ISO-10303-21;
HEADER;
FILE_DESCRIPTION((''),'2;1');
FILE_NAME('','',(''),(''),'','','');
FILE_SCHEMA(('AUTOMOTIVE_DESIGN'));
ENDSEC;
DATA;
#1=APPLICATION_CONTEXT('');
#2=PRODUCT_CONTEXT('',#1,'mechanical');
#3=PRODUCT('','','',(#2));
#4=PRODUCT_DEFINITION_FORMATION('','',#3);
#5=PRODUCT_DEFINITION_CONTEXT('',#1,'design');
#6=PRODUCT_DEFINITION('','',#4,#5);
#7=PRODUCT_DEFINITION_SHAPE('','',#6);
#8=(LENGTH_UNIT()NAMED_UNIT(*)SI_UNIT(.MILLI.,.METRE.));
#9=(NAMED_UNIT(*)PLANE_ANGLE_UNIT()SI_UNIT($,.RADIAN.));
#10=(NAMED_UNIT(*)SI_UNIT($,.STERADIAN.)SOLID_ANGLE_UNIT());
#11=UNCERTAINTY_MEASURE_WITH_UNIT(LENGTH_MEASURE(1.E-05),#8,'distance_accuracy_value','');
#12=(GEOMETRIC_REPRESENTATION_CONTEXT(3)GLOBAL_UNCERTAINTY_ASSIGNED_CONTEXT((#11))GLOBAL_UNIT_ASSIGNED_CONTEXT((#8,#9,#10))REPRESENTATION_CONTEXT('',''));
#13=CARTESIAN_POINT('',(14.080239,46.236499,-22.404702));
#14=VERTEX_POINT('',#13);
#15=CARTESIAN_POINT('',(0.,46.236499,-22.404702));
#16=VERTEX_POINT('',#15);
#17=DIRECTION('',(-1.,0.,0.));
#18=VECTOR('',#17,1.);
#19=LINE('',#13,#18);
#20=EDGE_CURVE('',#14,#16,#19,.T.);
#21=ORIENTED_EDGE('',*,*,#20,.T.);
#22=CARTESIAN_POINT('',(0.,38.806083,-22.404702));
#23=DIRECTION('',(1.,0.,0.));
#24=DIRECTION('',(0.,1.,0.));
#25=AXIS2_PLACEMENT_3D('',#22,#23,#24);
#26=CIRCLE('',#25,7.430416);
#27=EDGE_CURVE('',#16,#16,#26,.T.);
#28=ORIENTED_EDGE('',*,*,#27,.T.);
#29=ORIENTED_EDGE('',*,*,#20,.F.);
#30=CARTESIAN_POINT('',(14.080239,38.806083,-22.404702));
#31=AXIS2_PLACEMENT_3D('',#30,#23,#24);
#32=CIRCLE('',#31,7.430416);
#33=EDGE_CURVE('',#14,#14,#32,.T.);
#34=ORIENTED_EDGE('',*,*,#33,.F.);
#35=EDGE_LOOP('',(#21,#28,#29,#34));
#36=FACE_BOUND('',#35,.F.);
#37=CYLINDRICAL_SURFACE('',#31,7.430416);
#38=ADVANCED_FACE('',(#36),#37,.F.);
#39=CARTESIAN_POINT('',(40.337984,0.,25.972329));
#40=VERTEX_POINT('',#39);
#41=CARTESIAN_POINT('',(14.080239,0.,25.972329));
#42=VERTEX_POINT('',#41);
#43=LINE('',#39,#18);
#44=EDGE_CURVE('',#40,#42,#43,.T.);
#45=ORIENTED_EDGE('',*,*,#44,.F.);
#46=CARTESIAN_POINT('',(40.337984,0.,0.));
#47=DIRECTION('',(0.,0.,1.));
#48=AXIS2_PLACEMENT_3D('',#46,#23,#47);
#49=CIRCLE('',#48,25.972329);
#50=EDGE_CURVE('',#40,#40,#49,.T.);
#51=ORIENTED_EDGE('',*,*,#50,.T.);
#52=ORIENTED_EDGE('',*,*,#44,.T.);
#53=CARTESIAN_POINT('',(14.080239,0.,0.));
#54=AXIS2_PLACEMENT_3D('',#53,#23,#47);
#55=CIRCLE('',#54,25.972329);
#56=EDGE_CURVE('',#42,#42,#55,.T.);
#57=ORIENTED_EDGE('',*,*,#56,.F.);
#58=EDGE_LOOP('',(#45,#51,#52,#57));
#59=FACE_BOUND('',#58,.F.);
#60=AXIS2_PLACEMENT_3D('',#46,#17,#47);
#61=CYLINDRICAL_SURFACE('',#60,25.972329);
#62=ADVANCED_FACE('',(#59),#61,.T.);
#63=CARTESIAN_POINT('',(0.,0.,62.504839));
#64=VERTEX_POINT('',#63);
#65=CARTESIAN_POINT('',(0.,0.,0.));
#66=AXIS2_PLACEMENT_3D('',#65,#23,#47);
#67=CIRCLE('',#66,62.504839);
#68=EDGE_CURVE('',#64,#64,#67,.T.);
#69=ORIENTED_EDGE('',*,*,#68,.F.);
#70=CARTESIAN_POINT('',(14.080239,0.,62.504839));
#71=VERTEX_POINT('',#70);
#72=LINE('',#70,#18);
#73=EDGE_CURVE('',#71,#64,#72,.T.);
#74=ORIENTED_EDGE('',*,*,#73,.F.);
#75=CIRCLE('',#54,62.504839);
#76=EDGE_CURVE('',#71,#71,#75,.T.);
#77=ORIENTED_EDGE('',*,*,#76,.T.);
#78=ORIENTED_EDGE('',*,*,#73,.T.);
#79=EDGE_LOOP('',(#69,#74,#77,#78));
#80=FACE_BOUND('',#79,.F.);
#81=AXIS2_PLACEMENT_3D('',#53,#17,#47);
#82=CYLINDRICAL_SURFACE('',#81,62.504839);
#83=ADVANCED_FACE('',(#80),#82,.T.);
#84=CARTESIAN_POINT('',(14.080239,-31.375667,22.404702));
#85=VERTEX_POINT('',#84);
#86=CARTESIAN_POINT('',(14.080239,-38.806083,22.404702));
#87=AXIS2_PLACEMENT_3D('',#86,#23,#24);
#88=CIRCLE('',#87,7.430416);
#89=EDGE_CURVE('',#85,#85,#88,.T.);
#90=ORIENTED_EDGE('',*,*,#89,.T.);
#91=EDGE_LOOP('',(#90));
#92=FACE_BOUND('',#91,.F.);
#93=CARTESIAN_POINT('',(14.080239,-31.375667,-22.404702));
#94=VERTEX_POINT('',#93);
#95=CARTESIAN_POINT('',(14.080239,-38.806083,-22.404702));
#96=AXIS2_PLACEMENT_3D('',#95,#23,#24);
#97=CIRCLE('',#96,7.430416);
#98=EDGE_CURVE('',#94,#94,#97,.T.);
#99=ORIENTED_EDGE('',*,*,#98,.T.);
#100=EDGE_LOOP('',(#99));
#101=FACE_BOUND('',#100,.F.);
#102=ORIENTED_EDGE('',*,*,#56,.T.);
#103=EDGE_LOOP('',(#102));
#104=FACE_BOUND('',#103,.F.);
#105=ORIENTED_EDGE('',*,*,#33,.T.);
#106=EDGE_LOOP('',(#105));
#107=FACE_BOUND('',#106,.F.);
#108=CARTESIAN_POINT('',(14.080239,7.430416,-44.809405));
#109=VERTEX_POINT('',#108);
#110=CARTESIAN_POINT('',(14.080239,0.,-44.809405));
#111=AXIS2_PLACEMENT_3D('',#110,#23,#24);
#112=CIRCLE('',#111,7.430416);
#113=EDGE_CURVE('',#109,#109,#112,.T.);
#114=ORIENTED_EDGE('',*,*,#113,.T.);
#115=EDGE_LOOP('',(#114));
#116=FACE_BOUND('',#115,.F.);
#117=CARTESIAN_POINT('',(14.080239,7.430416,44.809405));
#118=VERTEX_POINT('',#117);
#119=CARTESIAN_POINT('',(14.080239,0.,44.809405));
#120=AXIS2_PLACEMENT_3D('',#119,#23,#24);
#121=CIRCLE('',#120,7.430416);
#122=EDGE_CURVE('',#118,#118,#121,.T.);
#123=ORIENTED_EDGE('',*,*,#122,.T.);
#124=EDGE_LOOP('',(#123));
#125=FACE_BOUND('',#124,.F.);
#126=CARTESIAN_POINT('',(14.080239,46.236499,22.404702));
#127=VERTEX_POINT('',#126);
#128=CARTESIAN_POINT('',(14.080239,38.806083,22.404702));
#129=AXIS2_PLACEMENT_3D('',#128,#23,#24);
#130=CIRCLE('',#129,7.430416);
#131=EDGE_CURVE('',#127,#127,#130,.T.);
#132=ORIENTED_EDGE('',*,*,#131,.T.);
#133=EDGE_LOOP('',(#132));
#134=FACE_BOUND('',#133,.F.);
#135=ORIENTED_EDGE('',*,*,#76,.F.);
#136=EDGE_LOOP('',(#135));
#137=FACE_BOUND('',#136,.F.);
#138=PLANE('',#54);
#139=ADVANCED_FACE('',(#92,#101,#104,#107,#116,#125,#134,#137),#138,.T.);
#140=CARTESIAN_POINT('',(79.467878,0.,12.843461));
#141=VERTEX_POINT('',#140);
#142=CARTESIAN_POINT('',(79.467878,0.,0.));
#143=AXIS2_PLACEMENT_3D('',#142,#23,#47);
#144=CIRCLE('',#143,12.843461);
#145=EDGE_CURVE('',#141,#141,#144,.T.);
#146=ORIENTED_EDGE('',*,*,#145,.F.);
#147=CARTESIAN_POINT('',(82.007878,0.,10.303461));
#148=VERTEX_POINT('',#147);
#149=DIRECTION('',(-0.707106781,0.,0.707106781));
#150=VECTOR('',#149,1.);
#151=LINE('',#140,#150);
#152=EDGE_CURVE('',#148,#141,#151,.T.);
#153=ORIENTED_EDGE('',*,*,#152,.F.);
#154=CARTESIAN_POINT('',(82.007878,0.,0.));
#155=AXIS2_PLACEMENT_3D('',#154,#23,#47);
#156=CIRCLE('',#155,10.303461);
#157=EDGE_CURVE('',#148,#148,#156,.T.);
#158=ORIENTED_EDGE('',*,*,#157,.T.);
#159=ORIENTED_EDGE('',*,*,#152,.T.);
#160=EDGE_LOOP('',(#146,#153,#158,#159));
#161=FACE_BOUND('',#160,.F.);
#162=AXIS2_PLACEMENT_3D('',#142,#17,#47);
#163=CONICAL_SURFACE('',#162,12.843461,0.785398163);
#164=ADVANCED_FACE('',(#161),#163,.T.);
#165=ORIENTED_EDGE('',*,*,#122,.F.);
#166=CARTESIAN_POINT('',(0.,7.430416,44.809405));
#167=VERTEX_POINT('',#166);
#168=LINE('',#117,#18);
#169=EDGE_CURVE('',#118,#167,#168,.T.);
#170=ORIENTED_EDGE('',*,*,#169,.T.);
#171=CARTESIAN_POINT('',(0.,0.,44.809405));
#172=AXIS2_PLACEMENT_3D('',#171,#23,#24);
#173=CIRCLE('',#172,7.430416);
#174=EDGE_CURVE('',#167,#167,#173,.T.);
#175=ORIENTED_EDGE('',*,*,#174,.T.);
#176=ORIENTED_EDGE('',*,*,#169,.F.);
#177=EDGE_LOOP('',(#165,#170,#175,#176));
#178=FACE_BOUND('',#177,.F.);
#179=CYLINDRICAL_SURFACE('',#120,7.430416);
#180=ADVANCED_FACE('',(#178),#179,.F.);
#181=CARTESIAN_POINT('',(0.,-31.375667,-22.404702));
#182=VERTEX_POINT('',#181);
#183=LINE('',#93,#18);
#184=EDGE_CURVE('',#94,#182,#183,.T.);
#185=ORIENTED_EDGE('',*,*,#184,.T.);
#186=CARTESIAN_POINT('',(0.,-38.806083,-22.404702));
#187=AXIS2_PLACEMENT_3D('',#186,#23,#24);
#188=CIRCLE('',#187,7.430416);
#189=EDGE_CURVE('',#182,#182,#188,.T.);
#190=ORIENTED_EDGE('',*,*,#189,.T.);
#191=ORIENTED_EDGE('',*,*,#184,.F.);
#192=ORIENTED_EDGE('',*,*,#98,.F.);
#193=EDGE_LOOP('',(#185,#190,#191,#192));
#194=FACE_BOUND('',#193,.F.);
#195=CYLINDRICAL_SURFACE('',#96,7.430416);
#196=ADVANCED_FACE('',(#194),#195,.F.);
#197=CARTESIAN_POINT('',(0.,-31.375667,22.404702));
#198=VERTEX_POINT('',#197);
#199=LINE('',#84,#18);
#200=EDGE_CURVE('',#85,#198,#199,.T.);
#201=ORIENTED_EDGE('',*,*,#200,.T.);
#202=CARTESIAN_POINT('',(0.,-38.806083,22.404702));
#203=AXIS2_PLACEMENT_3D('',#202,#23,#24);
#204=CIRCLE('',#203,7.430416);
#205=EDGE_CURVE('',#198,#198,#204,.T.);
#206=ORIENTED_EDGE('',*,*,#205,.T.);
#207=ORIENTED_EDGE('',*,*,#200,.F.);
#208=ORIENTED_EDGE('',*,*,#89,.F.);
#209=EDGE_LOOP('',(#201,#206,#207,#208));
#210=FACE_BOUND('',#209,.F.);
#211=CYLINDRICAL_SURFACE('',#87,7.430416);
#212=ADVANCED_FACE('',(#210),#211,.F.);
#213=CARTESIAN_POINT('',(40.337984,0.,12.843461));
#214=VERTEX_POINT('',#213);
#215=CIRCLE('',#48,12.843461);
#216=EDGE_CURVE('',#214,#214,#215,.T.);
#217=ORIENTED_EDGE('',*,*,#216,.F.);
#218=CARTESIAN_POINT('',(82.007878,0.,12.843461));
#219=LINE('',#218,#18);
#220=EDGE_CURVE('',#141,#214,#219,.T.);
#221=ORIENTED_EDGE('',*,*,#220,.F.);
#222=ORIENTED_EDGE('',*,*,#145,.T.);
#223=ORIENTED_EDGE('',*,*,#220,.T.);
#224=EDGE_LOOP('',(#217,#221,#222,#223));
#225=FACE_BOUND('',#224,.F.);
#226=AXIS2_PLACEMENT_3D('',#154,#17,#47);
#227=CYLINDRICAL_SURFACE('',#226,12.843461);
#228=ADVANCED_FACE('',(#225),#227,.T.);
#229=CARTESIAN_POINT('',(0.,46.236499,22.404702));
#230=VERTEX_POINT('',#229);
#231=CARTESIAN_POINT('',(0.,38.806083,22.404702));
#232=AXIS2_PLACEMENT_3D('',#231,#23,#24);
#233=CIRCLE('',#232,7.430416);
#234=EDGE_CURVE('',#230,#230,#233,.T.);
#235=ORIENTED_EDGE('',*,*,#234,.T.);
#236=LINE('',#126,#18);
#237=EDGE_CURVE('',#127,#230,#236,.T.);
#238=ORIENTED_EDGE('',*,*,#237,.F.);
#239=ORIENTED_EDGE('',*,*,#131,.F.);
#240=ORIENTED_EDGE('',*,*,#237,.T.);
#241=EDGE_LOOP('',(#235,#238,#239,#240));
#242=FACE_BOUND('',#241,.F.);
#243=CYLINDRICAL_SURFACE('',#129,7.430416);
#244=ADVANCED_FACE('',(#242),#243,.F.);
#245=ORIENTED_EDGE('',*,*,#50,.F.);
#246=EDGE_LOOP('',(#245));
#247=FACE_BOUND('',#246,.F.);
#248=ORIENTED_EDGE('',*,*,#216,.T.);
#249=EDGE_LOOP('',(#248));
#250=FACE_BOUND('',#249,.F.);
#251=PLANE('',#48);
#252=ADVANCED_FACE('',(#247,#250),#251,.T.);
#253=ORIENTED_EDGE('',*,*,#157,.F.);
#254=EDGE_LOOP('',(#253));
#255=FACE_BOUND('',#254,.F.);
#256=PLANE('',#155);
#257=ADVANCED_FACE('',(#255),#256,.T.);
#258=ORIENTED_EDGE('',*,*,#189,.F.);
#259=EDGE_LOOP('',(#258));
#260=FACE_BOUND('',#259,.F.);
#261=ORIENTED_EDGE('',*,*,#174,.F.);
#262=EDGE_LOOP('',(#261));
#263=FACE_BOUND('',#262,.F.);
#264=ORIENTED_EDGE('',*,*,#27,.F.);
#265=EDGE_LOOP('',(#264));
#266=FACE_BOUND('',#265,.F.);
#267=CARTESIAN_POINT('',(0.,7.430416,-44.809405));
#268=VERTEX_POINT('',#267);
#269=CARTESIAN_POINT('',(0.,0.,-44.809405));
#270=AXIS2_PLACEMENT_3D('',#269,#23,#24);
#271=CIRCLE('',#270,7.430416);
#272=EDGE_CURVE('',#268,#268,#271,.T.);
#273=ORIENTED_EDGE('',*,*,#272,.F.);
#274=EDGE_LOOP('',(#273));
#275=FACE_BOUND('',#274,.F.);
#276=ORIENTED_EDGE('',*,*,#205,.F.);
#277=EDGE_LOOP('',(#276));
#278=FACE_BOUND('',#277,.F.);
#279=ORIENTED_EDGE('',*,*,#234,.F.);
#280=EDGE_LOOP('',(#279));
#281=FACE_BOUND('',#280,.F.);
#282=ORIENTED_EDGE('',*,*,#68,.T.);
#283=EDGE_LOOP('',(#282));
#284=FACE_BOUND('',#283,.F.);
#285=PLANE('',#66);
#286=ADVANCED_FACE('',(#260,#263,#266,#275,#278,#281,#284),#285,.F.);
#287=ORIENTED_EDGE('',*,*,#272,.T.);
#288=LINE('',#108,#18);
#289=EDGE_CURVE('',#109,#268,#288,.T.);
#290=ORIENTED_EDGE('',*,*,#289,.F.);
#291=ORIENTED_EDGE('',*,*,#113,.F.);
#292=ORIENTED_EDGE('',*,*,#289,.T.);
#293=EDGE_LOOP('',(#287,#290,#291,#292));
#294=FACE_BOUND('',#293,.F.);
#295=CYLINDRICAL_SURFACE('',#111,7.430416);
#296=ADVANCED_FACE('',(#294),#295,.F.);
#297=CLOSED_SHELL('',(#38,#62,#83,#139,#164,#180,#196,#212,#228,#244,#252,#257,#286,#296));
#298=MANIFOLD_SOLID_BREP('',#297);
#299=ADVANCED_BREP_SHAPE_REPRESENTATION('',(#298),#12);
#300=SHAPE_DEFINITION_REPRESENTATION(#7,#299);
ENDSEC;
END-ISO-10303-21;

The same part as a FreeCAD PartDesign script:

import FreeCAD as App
import Part
import Sketcher

V = App.Vector


def edges_at(feature, points):
    """Names of the edges that pass closest to the given points."""
    edges = feature.Shape.Edges
    near = lambda p: min(range(len(edges)), key=lambda i: edges[i].distToShape(Part.Vertex(*p))[0])
    return sorted({f"Edge{near(p) + 1}" for p in points})


def add_polygon(sketch, points):
    """Adds a closed chain of lines whose ends are joined by coincident constraints."""
    first, n = sketch.GeometryCount, len(points)
    for a, b in zip(points, points[1:] + points[:1]):
        sketch.addGeometry(Part.LineSegment(App.Vector(*a, 0), App.Vector(*b, 0)), False)
    for i in range(n):
        sketch.addConstraint(Sketcher.Constraint("Coincident", first + i, 2, first + (i + 1) % n, 1))

doc = App.newDocument("Part")
params = doc.addObject("Spreadsheet::Sheet", "Params")
for row, (alias, value) in enumerate([
    ("revolution_angle", "360 deg"),
    ("chamfer_size", "0.1 in"),
    ("pocket1_length", "1 in"),
], start=1):
    params.set(f"A{row}", alias)
    params.set(f"B{row}", "=" + value)
    params.setAlias(f"B{row}", alias)

body = doc.addObject("PartDesign::Body", "Body")

sketch1 = doc.addObject("Sketcher::SketchObject", "Sketch")
body.addObject(sketch1)
sketch1.AttachmentSupport = (doc.XZ_Plane, [""])
sketch1.MapMode = "FlatFace"
add_polygon(sketch1, [(0, 63), (0, 0), (82, 0), (82, 13), (40, 13), (40, 26), (14, 26), (14, 63)])
sketch1.addConstraint(Sketcher.Constraint("Vertical", 0))
sketch1.addConstraint(Sketcher.Constraint("Horizontal", 1))
sketch1.addConstraint(Sketcher.Constraint("Vertical", 2))
sketch1.addConstraint(Sketcher.Constraint("Horizontal", 3))
sketch1.addConstraint(Sketcher.Constraint("Vertical", 4))
sketch1.addConstraint(Sketcher.Constraint("Horizontal", 5))
sketch1.addConstraint(Sketcher.Constraint("Vertical", 6))
sketch1.addConstraint(Sketcher.Constraint("Horizontal", 7))
sketch1.addConstraint(Sketcher.Constraint("Coincident", 0, 2, -1, 1))
sketch1.addConstraint(Sketcher.Constraint("DistanceX", 1, 1, 1, 2, 82.007878))
sketch1.addConstraint(Sketcher.Constraint("DistanceX", 7, 2, 7, 1, 14.080239))
sketch1.addConstraint(Sketcher.Constraint("DistanceY", 0, 2, 0, 1, 62.504839))
sketch1.addConstraint(Sketcher.Constraint("DistanceY", 2, 1, 2, 2, 12.843461))
sketch1.addConstraint(Sketcher.Constraint("DistanceY", 6, 1, 6, 2, 36.53251))
sketch1.addConstraint(Sketcher.Constraint("DistanceX", 3, 2, 3, 1, 41.669894))
revolution = doc.addObject("PartDesign::Revolution", "Revolution")
body.addObject(revolution)
revolution.Profile = sketch1
revolution.ReferenceAxis = (sketch1, ["H_Axis"])
revolution.setExpression("Angle", "Params.revolution_angle")
doc.recompute()

chamfer = doc.addObject("PartDesign::Chamfer", "Chamfer")
body.addObject(chamfer)
chamfer.Base = (revolution, edges_at(revolution, [(82.008, 0, -12.843)]))
chamfer.setExpression("Size", "Params.chamfer_size")

sketch2 = doc.addObject("Sketcher::SketchObject", "Sketch001")
body.addObject(sketch2)
sketch2.AttachmentSupport = (doc.YZ_Plane, [""])
sketch2.MapMode = "FlatFace"
sketch2.AttachmentOffset = App.Placement(V(0, 0, 14.080239), App.Rotation())
sketch2.addGeometry(Part.Circle(V(0, 45, 0), V(0, 0, 1), 7), False)
sketch2.addGeometry(Part.Circle(V(-39, 22, 0), V(0, 0, 1), 7), False)
sketch2.addGeometry(Part.Circle(V(-39, -22, 0), V(0, 0, 1), 7), False)
sketch2.addGeometry(Part.Circle(V(0, -45, 0), V(0, 0, 1), 7), False)
sketch2.addGeometry(Part.Circle(V(39, -22, 0), V(0, 0, 1), 7), False)
sketch2.addGeometry(Part.Circle(V(39, 22, 0), V(0, 0, 1), 7), False)
sketch2.addConstraint(Sketcher.Constraint("Equal", 0, 1))
sketch2.addConstraint(Sketcher.Constraint("Equal", 1, 2))
sketch2.addConstraint(Sketcher.Constraint("Equal", 2, 3))
sketch2.addConstraint(Sketcher.Constraint("Equal", 3, 4))
sketch2.addConstraint(Sketcher.Constraint("Equal", 4, 5))
sketch2.addConstraint(Sketcher.Constraint("Symmetric", 0, 3, 3, 3, -1, 1))
sketch2.addConstraint(Sketcher.Constraint("Symmetric", 1, 3, 4, 3, -1, 1))
sketch2.addConstraint(Sketcher.Constraint("Symmetric", 2, 3, 5, 3, -1, 1))
sketch2.addConstraint(Sketcher.Constraint("Symmetric", 2, 3, 4, 3, -2))
sketch2.addConstraint(Sketcher.Constraint("PointOnObject", 0, 3, -2))
sketch2.addConstraint(Sketcher.Constraint("Diameter", 0, 14.860832))
sketch2.addConstraint(Sketcher.Constraint("DistanceY", 3, 3, 0, 3, 89.61881))
sketch2.addConstraint(Sketcher.Constraint("DistanceX", 1, 3, -1, 1, 38.806083))
sketch2.addConstraint(Sketcher.Constraint("DistanceY", -1, 1, 1, 3, 22.404702))
pocket1 = doc.addObject("PartDesign::Pocket", "Pocket")
body.addObject(pocket1)
pocket1.Profile = sketch2
pocket1.setExpression("Length", "Params.pocket1_length")

doc.recompute()
